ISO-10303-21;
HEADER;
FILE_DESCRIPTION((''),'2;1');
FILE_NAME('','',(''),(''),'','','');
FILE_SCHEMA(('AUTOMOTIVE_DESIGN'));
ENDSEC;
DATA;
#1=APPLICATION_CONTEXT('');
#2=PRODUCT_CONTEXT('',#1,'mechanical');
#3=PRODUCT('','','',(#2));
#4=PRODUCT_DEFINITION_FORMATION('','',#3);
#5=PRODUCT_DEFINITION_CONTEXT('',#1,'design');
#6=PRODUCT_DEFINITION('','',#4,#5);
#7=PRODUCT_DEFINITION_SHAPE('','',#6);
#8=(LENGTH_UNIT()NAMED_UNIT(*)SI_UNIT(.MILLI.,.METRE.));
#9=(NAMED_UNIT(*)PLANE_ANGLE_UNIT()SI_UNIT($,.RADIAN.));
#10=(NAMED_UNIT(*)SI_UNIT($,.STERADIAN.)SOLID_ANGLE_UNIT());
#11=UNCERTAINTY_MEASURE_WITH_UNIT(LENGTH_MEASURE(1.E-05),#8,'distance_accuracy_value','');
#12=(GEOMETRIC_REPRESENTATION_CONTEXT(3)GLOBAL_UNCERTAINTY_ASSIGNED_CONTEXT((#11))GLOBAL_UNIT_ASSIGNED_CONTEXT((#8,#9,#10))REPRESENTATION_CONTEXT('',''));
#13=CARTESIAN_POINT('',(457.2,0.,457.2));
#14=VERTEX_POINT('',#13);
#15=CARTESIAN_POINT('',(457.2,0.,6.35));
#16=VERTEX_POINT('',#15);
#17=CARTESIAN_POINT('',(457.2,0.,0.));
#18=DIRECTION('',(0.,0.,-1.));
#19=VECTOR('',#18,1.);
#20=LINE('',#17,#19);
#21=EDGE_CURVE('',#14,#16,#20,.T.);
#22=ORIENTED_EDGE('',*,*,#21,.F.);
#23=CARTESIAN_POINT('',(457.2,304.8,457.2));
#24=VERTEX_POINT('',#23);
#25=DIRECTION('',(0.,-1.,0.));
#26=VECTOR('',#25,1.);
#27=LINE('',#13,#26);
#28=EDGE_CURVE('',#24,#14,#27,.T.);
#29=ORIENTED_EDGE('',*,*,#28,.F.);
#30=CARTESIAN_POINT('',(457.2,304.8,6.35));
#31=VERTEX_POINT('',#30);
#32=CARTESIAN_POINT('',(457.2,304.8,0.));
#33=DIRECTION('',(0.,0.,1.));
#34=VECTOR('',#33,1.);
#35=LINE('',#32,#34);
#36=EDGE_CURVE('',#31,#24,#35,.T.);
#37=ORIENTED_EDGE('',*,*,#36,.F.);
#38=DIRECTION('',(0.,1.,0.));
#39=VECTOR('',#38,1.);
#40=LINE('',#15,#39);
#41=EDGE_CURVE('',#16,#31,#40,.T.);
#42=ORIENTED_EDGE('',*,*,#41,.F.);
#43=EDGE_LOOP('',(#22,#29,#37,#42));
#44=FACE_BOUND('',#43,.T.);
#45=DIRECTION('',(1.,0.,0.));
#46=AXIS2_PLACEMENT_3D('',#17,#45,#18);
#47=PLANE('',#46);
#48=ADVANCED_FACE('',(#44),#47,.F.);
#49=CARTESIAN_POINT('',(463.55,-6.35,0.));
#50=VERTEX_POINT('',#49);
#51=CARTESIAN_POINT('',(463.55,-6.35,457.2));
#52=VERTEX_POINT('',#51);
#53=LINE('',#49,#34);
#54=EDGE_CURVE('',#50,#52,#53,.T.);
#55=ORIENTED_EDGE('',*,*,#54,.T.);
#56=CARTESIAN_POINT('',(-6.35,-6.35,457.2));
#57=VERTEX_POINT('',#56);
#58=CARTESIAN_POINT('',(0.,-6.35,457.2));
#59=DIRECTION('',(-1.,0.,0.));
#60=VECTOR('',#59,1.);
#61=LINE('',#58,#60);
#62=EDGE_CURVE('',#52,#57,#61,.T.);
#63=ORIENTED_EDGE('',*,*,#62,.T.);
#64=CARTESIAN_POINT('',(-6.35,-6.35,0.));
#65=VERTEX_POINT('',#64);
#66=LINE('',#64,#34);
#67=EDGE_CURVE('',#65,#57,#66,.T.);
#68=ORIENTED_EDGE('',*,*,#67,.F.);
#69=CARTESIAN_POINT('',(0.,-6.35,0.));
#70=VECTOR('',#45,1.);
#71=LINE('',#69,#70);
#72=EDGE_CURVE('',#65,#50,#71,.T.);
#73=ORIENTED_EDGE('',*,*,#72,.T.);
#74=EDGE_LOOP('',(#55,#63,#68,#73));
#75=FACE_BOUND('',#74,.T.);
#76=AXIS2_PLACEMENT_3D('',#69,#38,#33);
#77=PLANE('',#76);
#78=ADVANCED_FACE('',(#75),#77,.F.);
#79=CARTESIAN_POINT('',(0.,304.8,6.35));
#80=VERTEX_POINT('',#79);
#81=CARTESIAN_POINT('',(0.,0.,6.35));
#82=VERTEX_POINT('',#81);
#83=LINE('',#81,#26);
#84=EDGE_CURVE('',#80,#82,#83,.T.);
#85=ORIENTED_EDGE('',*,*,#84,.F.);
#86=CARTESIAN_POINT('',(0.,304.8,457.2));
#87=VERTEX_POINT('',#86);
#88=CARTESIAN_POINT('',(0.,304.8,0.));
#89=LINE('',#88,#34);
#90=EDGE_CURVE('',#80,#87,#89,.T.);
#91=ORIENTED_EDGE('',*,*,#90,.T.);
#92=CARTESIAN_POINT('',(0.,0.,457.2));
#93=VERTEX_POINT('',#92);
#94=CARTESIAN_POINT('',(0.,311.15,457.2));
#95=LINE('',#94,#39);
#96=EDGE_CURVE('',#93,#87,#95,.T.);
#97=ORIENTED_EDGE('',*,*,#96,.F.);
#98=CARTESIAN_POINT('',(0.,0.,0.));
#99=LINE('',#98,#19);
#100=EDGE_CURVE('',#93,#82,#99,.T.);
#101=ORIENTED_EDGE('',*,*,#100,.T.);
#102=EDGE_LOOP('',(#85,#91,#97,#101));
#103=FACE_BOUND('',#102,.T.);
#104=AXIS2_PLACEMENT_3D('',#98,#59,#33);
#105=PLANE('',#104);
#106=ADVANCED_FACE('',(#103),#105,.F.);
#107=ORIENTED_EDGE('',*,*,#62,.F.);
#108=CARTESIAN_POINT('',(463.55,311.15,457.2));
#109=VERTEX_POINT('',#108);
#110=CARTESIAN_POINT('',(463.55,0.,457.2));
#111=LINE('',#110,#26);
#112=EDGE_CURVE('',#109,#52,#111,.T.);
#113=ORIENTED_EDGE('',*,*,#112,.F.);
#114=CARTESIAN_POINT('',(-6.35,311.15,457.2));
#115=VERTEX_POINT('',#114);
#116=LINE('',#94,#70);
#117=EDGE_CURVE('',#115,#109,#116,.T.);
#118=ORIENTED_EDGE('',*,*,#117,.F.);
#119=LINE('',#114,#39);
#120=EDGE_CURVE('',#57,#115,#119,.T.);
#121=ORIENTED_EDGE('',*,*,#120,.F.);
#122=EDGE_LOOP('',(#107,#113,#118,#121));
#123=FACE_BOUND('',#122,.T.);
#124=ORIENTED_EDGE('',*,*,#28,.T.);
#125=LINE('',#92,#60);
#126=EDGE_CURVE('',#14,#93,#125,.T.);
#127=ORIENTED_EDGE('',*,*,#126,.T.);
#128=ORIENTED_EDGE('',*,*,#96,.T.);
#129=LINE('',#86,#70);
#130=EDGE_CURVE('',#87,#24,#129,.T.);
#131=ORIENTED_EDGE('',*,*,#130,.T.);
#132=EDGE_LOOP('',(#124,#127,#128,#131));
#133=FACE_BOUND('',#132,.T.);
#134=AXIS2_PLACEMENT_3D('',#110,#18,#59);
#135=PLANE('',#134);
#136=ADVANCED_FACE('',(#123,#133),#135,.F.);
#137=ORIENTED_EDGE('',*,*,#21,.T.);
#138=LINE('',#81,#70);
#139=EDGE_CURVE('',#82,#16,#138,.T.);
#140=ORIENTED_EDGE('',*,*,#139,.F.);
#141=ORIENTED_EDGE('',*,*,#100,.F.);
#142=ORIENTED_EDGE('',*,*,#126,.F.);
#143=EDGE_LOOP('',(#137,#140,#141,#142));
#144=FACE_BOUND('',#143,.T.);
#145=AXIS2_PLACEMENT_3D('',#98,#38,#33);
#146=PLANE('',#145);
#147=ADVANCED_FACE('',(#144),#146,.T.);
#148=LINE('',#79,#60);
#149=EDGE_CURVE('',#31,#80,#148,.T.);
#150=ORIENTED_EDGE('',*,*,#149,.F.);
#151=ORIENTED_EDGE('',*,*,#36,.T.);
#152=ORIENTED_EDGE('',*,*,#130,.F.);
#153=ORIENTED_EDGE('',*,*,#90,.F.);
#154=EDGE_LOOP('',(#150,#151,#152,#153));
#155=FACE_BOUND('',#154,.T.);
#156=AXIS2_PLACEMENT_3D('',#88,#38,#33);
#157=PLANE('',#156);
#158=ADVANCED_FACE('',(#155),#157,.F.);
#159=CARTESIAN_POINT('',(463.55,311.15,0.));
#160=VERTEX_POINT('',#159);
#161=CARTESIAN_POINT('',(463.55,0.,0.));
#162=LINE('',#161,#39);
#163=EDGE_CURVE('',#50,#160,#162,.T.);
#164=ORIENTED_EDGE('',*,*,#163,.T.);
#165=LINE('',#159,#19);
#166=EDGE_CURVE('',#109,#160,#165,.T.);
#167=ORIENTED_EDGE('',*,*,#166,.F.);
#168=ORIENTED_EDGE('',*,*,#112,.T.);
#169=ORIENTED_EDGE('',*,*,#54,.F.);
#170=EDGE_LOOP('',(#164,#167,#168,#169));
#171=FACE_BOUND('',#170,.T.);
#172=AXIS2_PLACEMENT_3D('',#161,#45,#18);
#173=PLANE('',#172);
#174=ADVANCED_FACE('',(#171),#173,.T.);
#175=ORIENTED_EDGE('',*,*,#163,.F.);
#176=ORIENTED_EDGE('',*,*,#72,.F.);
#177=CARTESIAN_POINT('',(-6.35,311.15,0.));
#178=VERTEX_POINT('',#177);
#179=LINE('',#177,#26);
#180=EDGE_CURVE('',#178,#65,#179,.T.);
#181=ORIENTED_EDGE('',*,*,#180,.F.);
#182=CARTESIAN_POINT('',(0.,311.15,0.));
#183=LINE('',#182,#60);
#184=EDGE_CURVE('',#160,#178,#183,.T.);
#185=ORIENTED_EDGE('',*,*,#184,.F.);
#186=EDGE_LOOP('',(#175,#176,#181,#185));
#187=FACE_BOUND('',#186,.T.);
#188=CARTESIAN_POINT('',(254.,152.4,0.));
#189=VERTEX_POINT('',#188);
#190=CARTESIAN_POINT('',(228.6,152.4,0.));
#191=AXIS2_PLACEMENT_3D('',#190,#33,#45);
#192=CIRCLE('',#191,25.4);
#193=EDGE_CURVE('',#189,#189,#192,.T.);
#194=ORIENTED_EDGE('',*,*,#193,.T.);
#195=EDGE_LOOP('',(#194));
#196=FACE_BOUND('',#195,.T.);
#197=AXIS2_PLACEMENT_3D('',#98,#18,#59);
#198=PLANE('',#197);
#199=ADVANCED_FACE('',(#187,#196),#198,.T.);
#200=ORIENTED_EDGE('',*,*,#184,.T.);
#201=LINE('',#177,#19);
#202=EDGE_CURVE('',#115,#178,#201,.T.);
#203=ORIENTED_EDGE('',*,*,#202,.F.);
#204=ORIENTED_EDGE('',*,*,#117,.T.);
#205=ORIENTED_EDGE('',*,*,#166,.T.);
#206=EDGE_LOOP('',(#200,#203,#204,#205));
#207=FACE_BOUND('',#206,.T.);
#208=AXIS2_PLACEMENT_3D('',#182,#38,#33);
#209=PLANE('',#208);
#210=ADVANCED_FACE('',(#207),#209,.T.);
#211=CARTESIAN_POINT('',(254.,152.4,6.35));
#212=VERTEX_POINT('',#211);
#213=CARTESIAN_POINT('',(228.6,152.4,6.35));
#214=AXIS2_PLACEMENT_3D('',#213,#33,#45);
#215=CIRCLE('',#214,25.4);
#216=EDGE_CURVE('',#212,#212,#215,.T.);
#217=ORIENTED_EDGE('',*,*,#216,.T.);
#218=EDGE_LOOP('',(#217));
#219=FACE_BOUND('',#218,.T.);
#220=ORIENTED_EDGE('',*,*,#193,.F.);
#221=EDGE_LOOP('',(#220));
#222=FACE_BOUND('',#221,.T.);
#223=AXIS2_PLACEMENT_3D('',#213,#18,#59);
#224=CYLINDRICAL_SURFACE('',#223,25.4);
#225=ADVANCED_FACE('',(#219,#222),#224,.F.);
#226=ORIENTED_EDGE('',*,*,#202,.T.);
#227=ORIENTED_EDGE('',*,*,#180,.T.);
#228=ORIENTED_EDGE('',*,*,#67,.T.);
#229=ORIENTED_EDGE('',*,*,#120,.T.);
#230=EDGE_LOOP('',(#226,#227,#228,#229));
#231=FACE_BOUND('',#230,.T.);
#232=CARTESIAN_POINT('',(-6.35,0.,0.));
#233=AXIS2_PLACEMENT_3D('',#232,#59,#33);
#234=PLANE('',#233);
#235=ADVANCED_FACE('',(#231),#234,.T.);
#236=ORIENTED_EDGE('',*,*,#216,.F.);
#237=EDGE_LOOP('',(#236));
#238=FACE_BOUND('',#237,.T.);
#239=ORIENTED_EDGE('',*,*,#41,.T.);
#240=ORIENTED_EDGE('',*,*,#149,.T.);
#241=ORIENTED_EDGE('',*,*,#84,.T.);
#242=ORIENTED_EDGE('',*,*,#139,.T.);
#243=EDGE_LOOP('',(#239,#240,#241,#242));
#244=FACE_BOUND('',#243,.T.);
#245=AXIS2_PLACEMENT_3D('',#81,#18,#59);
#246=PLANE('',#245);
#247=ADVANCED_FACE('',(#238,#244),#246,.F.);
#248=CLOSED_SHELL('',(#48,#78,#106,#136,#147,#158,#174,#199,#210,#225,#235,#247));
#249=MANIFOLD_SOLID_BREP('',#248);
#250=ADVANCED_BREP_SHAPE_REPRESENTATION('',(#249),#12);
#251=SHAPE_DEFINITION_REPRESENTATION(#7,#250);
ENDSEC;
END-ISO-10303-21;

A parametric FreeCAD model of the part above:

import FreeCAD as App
import Part
import Sketcher
from FreeCAD import Vector
Q = App.Units.Quantity


def add_polygon(sketch, points):
    """Adds a closed chain of lines whose ends are joined by coincident constraints."""
    first, n = sketch.GeometryCount, len(points)
    for a, b in zip(points, points[1:] + points[:1]):
        sketch.addGeometry(Part.LineSegment(App.Vector(*a, 0), App.Vector(*b, 0)), False)
    for i in range(n):
        sketch.addConstraint(Sketcher.Constraint("Coincident", first + i, 2, first + (i + 1) % n, 1))

doc = App.newDocument("Part")
body = doc.addObject("PartDesign::Body", "Body")

# Sketch on XY plane
sketch1 = body.newObject("Sketcher::SketchObject", "Sketch")
sketch1.AttachmentSupport = (doc.getObject("XY_Plane"), [""])
sketch1.MapMode = "FlatFace"
add_polygon(sketch1, [(0, 305), (0, 0), (457, 0), (457, 305)])  # lines 0-3
sketch1.addGeometry(Part.Circle(Vector(229, 152, 0), Vector(0, 0, 1), 25), False)  # 4
sketch1.addConstraint([
    Sketcher.Constraint("Vertical", 0),
    Sketcher.Constraint("Horizontal", 1),
    Sketcher.Constraint("Vertical", 2),
    Sketcher.Constraint("Horizontal", 3),
    Sketcher.Constraint("Coincident", 0, 2, -1, 1),
    Sketcher.Constraint("Diameter", 4, Q("2 in")),
    Sketcher.Constraint("DistanceX", 1, 1, 1, 2, Q("18 in")),
    Sketcher.Constraint("DistanceY", 0, 2, 0, 1, Q("12 in")),
    Sketcher.Constraint("DistanceX", -1, 1, 4, 3, Q("9 in")),
    Sketcher.Constraint("DistanceY", -1, 1, 4, 3, Q("6 in")),
])
pad1 = body.newObject("PartDesign::Pad", "Pad")
pad1.Profile = sketch1
pad1.Length = Q("0.25 in")

# Sketch on YZ plane
sketch2 = body.newObject("Sketcher::SketchObject", "Sketch001")
sketch2.AttachmentSupport = (doc.getObject("YZ_Plane"), [""])
sketch2.MapMode = "FlatFace"
sketch2.AttachmentOffset = App.Placement(Vector(0, 0, 18 * 25.4), App.Rotation())
add_polygon(sketch2, [(305, 457), (0, 457), (0, 0), (305, 0)])  # lines 0-3
sketch2.addConstraint([
    Sketcher.Constraint("Horizontal", 0),
    Sketcher.Constraint("Vertical", 1),
    Sketcher.Constraint("Horizontal", 2),
    Sketcher.Constraint("Vertical", 3),
    Sketcher.Constraint("Coincident", 1, 2, -1, 1),
    Sketcher.Constraint("DistanceX", 0, 2, 0, 1, Q("12 in")),
    Sketcher.Constraint("DistanceY", 1, 2, 1, 1, Q("18 in")),
])
pad2 = body.newObject("PartDesign::Pad", "Pad001")
pad2.Profile = sketch2
pad2.Length = Q("0.25 in")

# Sketch on XZ plane
sketch3 = body.newObject("Sketcher::SketchObject", "Sketch002")
sketch3.AttachmentSupport = (doc.getObject("XZ_Plane"), [""])
sketch3.MapMode = "FlatFace"
sketch3.AttachmentOffset = App.Placement(Vector(0, 0, -12 * 25.4), App.Rotation())
add_polygon(sketch3, [(0, 0), (0, 457), (464, 457), (464, 0)])  # lines 0-3
sketch3.addConstraint([
    Sketcher.Constraint("Vertical", 0),
    Sketcher.Constraint("Horizontal", 1),
    Sketcher.Constraint("Vertical", 2),
    Sketcher.Constraint("Horizontal", 3),
    Sketcher.Constraint("Coincident", 3, 2, -1, 1),
    Sketcher.Constraint("DistanceY", 0, 1, 0, 2, Q("18 in")),
    Sketcher.Constraint("DistanceX", 1, 1, 1, 2, Q("18.25 in")),
])
pad3 = body.newObject("PartDesign::Pad", "Pad002")
pad3.Profile = sketch3
pad3.Length = Q("0.25 in")
pad3.Reversed = True

# Sketch on XZ plane
sketch4 = body.newObject("Sketcher::SketchObject", "Sketch003")
sketch4.AttachmentSupport = (doc.getObject("XZ_Plane"), [""])
sketch4.MapMode = "FlatFace"
add_polygon(sketch4, [(0, 457), (0, 0), (464, 0), (464, 457)])  # lines 0-3
sketch4.addConstraint([
    Sketcher.Constraint("Vertical", 0),
    Sketcher.Constraint("Horizontal", 1),
    Sketcher.Constraint("Vertical", 2),
    Sketcher.Constraint("Horizontal", 3),
    Sketcher.Constraint("Coincident", 0, 2, -1, 1),
    Sketcher.Constraint("DistanceY", 0, 2, 0, 1, Q("18 in")),
    Sketcher.Constraint("DistanceX", 1, 1, 1, 2, Q("18.25 in")),
])
pad4 = body.newObject("PartDesign::Pad", "Pad003")
pad4.Profile = sketch4
pad4.Length = Q("0.25 in")

# Sketch on YZ plane
sketch5 = body.newObject("Sketcher::SketchObject", "Sketch004")
sketch5.AttachmentSupport = (doc.getObject("YZ_Plane"), [""])
sketch5.MapMode = "FlatFace"
add_polygon(sketch5, [(311, 0), (-6, 0), (-6, 457), (311, 457)])  # lines 0-3
sketch5.addConstraint([
    Sketcher.Constraint("Horizontal", 0),
    Sketcher.Constraint("Vertical", 1),
    Sketcher.Constraint("Horizontal", 2),
    Sketcher.Constraint("Vertical", 3),
    Sketcher.Constraint("PointOnObject", 0, 2, -1),
    Sketcher.Constraint("DistanceY", 1, 1, 1, 2, Q("18 in")),
    Sketcher.Constraint("DistanceX", 0, 2, 0, 1, Q("12.5 in")),
    Sketcher.Constraint("DistanceX", 0, 2, -1, 1, Q("0.25 in")),
])
pad5 = body.newObject("PartDesign::Pad", "Pad004")
pad5.Profile = sketch5
pad5.Length = Q("0.25 in")
pad5.Reversed = True

doc.recompute()
